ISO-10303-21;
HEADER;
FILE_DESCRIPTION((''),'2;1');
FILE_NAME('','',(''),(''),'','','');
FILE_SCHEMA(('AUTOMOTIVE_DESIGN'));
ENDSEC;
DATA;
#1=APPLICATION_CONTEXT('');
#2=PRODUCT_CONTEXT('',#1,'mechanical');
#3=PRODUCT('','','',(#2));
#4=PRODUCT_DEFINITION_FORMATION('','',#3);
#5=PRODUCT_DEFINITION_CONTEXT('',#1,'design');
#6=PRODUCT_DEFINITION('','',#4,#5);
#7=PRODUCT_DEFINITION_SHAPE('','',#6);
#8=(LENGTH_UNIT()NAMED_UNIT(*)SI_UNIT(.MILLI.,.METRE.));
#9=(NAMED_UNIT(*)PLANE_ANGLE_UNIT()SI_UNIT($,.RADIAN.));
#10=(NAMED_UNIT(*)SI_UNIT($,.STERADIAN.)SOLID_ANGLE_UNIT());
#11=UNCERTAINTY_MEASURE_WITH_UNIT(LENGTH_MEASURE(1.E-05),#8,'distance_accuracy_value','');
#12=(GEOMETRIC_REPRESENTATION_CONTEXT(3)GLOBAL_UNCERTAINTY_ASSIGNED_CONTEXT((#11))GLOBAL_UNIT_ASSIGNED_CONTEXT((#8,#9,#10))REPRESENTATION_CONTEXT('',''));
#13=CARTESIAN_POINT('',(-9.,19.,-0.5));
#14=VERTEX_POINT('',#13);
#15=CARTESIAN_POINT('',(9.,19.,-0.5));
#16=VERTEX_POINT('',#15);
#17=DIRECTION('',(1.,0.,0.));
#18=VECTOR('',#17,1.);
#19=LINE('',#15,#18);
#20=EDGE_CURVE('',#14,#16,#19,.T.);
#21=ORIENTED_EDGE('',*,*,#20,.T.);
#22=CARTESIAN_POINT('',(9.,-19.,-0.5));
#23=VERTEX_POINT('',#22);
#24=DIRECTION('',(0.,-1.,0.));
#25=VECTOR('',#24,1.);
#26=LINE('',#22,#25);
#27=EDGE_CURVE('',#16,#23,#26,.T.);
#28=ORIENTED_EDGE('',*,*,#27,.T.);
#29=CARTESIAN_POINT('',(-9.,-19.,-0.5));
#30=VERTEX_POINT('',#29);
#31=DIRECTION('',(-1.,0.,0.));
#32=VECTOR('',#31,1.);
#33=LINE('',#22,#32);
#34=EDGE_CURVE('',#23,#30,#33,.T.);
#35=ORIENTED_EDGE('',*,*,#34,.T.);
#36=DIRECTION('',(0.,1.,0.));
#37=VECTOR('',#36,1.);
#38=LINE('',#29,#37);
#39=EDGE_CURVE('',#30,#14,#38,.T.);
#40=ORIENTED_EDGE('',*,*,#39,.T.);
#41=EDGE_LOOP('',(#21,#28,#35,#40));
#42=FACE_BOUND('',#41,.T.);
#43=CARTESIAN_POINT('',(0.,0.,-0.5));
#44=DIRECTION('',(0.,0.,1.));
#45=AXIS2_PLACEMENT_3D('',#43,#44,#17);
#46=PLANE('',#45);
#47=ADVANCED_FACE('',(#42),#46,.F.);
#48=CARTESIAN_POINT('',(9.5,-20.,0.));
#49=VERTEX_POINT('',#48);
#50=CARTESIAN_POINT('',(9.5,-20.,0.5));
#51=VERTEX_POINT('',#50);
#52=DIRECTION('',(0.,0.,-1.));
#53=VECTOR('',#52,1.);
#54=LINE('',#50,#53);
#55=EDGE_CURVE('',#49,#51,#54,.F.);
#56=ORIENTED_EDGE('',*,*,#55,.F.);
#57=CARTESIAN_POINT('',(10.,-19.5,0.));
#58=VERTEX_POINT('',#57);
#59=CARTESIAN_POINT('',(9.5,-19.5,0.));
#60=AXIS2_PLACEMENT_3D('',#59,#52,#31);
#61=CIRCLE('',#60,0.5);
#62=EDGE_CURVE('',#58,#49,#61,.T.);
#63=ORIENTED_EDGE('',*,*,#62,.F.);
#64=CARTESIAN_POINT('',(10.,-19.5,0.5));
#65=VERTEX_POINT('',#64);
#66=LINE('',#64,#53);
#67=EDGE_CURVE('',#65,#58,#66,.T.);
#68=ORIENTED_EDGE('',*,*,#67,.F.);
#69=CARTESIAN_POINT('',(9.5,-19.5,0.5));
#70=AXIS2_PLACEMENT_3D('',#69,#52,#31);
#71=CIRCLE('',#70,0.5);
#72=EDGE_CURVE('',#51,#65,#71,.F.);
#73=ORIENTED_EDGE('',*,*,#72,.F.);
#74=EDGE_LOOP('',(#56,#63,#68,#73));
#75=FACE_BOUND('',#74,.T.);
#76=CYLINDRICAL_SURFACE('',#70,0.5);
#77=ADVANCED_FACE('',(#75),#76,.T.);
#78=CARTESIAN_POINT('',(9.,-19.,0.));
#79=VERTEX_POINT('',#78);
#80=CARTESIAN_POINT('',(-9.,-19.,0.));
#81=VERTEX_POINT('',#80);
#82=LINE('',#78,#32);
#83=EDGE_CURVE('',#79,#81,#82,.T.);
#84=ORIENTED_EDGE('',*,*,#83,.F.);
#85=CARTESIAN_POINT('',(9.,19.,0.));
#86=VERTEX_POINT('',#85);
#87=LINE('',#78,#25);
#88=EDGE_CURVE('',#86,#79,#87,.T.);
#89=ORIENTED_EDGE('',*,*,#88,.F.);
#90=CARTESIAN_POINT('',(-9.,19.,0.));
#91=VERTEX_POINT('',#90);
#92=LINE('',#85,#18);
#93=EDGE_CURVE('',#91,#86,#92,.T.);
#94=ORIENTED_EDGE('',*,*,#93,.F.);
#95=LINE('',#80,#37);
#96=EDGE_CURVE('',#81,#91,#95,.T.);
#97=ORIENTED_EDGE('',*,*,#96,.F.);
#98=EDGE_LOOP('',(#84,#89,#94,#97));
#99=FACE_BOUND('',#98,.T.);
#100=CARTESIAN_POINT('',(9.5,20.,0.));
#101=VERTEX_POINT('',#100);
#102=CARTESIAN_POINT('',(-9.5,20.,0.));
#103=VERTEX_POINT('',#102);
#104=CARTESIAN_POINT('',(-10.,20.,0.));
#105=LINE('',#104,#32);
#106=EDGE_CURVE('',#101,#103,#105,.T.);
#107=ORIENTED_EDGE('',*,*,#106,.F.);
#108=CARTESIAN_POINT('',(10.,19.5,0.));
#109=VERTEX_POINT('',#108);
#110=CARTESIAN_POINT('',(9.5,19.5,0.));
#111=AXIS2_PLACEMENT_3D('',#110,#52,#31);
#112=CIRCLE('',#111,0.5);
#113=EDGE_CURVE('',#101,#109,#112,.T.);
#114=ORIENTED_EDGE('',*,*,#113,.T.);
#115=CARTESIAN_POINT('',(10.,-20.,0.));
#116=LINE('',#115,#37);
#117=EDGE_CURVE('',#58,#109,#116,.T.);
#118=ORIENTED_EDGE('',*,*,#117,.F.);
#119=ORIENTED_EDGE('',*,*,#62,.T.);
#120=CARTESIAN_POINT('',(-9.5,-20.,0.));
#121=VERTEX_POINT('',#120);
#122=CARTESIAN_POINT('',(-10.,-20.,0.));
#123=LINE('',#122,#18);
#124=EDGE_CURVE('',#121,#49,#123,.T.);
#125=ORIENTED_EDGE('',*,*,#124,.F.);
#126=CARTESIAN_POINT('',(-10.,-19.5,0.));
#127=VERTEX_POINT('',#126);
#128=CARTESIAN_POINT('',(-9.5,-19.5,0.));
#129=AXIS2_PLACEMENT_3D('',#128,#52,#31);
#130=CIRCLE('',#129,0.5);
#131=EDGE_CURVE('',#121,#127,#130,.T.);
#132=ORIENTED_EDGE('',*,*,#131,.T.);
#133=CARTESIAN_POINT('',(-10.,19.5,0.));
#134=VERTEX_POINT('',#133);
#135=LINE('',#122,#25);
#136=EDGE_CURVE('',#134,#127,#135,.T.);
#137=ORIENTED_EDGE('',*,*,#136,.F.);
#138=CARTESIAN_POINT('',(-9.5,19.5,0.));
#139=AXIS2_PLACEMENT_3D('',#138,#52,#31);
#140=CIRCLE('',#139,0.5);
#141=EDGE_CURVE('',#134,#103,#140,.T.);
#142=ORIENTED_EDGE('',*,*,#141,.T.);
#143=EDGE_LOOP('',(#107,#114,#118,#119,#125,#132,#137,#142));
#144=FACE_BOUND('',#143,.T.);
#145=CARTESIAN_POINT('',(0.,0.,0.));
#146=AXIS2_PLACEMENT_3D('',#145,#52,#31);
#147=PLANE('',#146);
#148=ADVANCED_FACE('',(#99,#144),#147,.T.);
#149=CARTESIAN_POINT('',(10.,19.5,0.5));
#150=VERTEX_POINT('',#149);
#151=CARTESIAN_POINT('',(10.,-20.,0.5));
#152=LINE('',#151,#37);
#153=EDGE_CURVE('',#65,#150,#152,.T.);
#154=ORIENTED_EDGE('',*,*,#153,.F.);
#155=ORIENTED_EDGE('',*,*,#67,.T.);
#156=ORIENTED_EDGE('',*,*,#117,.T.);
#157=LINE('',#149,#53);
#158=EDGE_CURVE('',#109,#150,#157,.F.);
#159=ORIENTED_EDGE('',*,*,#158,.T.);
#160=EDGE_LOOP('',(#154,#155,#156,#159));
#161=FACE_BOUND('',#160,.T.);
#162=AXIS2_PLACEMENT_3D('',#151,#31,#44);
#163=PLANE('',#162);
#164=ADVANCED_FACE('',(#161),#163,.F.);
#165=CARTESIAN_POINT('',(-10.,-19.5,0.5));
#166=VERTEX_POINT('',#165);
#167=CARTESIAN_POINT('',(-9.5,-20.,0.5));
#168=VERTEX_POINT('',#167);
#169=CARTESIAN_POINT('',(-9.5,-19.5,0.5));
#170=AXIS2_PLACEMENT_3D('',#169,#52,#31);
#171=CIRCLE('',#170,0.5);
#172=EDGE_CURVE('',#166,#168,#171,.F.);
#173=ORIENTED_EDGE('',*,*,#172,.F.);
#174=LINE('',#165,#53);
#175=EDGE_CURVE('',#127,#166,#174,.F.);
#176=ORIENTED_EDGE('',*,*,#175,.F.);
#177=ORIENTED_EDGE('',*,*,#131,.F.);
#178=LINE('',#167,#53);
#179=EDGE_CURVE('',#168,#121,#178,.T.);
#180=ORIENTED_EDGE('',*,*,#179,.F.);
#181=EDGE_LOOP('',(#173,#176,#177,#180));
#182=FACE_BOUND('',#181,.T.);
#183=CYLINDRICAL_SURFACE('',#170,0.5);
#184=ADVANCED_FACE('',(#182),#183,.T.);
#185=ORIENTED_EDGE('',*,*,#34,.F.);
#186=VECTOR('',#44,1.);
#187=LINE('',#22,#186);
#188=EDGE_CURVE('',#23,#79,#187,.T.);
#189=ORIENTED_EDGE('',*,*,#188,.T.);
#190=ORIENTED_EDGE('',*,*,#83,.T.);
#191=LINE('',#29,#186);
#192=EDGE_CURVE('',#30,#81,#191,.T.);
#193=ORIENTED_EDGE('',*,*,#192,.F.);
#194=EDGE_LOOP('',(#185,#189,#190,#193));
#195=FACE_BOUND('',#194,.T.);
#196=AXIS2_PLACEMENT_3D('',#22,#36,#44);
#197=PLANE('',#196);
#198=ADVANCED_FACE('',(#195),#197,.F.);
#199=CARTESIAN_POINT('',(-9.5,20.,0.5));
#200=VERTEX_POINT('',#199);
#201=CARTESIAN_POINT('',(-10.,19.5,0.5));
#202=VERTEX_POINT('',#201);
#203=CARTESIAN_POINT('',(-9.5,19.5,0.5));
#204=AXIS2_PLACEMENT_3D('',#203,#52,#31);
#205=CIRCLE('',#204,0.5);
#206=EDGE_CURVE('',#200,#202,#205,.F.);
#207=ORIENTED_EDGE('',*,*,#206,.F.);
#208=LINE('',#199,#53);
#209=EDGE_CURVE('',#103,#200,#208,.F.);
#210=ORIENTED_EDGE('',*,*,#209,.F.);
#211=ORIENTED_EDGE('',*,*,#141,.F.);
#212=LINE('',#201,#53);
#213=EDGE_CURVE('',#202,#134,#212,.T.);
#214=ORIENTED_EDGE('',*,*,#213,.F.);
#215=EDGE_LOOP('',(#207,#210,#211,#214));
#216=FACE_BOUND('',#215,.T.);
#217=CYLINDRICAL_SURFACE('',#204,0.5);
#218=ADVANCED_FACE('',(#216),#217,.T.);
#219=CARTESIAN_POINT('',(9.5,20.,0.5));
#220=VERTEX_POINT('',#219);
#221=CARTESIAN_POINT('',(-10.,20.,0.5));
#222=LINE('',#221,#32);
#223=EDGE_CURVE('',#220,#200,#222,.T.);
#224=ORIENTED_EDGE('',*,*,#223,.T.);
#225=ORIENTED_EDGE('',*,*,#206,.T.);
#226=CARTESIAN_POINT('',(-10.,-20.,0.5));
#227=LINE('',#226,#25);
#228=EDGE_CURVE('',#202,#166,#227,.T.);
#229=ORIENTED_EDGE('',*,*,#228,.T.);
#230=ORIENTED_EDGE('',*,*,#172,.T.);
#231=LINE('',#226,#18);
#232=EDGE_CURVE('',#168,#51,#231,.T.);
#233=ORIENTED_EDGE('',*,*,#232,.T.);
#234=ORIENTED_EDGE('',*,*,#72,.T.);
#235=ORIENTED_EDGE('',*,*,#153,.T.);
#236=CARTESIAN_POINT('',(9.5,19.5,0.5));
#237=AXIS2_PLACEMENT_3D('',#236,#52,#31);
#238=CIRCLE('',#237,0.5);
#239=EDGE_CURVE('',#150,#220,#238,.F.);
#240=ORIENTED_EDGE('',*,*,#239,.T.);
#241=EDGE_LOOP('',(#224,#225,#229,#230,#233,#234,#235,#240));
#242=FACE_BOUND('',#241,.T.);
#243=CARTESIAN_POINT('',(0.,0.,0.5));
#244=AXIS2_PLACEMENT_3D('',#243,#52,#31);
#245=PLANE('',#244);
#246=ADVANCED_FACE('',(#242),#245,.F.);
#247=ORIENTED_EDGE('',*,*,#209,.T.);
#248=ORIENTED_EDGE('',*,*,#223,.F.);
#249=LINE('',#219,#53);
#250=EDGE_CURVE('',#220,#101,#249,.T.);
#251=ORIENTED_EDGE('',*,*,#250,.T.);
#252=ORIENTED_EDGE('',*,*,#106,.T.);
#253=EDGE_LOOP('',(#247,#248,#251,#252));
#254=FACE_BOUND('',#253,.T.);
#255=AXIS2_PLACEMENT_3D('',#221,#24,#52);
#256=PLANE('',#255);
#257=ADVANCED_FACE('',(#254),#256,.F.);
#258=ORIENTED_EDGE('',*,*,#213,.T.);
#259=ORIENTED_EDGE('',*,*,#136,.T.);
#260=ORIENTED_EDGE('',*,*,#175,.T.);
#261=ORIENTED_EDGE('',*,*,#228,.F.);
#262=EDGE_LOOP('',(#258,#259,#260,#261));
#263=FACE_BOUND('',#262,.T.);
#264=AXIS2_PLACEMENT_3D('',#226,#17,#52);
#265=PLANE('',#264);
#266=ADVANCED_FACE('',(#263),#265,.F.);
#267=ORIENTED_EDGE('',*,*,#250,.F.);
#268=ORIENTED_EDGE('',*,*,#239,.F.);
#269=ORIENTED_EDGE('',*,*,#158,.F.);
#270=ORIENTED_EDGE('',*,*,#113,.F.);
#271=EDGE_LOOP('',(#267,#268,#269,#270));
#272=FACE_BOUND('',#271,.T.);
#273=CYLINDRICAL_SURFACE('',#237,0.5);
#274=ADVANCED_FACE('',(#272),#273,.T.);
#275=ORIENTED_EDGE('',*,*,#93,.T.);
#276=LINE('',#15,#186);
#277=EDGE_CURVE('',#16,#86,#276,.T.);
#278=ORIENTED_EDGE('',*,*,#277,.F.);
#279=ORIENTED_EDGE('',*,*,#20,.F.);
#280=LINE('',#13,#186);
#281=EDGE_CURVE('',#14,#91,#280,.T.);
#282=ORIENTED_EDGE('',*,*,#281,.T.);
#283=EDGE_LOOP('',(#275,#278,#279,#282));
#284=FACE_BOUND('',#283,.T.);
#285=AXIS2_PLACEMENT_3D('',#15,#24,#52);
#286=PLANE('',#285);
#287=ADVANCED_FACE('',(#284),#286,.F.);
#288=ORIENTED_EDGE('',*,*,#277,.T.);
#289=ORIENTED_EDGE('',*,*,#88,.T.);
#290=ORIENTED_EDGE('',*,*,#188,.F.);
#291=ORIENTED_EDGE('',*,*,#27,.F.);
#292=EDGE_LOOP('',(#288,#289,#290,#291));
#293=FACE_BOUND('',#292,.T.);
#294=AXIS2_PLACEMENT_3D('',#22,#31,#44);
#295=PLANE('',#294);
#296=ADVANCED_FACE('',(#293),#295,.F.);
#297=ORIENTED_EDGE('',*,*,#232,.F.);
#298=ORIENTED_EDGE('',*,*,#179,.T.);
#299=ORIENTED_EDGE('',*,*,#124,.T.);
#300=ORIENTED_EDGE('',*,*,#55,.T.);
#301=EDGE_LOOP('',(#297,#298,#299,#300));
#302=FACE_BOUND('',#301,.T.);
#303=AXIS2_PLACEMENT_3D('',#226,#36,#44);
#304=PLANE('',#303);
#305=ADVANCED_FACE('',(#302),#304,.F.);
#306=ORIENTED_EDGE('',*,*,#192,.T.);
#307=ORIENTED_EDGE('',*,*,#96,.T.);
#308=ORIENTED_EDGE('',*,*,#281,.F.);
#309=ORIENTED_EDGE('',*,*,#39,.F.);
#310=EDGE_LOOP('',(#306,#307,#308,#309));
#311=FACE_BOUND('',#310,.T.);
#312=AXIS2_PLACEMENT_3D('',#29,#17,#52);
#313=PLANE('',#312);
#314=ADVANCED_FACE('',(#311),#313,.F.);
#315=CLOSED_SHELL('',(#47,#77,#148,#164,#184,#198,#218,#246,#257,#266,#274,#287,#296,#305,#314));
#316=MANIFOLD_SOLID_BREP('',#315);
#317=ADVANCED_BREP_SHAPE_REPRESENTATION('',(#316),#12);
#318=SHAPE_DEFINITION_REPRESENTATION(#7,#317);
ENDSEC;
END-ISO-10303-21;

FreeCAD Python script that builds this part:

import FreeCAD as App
import Part
import Sketcher
from FreeCAD import Vector


def edges_at(feature, points):
    """Names of the edges that pass closest to the given points."""
    edges = feature.Shape.Edges
    near = lambda p: min(range(len(edges)), key=lambda i: edges[i].distToShape(Part.Vertex(*p))[0])
    return sorted({f"Edge{near(p) + 1}" for p in points})

doc = App.newDocument("Part")
params = doc.addObject("Spreadsheet::Sheet", "Params")
for row, (alias, value) in enumerate([
    ("sketch1_width", "20 mm"),
    ("sketch1_height", "40 mm"),
    ("pad1_length", "0.5 mm"),
    ("sketch2_width", "18 mm"),
    ("sketch2_height", "38 mm"),
    ("pad2_length", "0.5 mm"),
    ("fillet_radius", "0.5 mm"),
], start=1):
    params.set(f"A{row}", alias)
    params.set(f"B{row}", "=" + value)
    params.setAlias(f"B{row}", alias)

body = doc.addObject("PartDesign::Body", "Body")

# Sketch on XY plane
sketch1 = body.newObject("Sketcher::SketchObject", "Sketch")
sketch1.AttachmentSupport = (doc.getObject("XY_Plane"), [""])
sketch1.MapMode = "FlatFace"
sketch1.addGeometry(Part.LineSegment(Vector(-10, 20, 0), Vector(-10, -20, 0)), False)
sketch1.addGeometry(Part.LineSegment(Vector(-10, -20, 0), Vector(10, -20, 0)), False)
sketch1.addGeometry(Part.LineSegment(Vector(10, -20, 0), Vector(10, 20, 0)), False)
sketch1.addGeometry(Part.LineSegment(Vector(10, 20, 0), Vector(-10, 20, 0)), False)
sketch1.addConstraint(Sketcher.Constraint("Coincident", 0, 2, 1, 1))
sketch1.addConstraint(Sketcher.Constraint("Coincident", 1, 2, 2, 1))
sketch1.addConstraint(Sketcher.Constraint("Coincident", 2, 2, 3, 1))
sketch1.addConstraint(Sketcher.Constraint("Coincident", 3, 2, 0, 1))
sketch1.addConstraint(Sketcher.Constraint("Vertical", 0))
sketch1.addConstraint(Sketcher.Constraint("Horizontal", 1))
sketch1.addConstraint(Sketcher.Constraint("Vertical", 2))
sketch1.addConstraint(Sketcher.Constraint("Horizontal", 3))
sketch1.addConstraint(Sketcher.Constraint("Symmetric", 0, 2, 2, 2, -1, 1))
sketch1.addConstraint(Sketcher.Constraint("DistanceX", 1, 1, 1, 2, 20.0))
sketch1.addConstraint(Sketcher.Constraint("DistanceY", 0, 2, 0, 1, 40.0))
sketch1.setExpression("Constraints[9]", "Params.sketch1_width")
sketch1.setExpression("Constraints[10]", "Params.sketch1_height")
pad1 = body.newObject("PartDesign::Pad", "Pad")
pad1.Profile = sketch1
pad1.setExpression("Length", "Params.pad1_length")

# Sketch on XY plane
sketch2 = body.newObject("Sketcher::SketchObject", "Sketch001")
sketch2.AttachmentSupport = (doc.getObject("XY_Plane"), [""])
sketch2.MapMode = "FlatFace"
sketch2.addGeometry(Part.LineSegment(Vector(9, 19, 0), Vector(9, -19, 0)), False)
sketch2.addGeometry(Part.LineSegment(Vector(9, -19, 0), Vector(-9, -19, 0)), False)
sketch2.addGeometry(Part.LineSegment(Vector(-9, -19, 0), Vector(-9, 19, 0)), False)
sketch2.addGeometry(Part.LineSegment(Vector(-9, 19, 0), Vector(9, 19, 0)), False)
sketch2.addConstraint(Sketcher.Constraint("Coincident", 0, 2, 1, 1))
sketch2.addConstraint(Sketcher.Constraint("Coincident", 1, 2, 2, 1))
sketch2.addConstraint(Sketcher.Constraint("Coincident", 2, 2, 3, 1))
sketch2.addConstraint(Sketcher.Constraint("Coincident", 3, 2, 0, 1))
sketch2.addConstraint(Sketcher.Constraint("Vertical", 0))
sketch2.addConstraint(Sketcher.Constraint("Horizontal", 1))
sketch2.addConstraint(Sketcher.Constraint("Vertical", 2))
sketch2.addConstraint(Sketcher.Constraint("Horizontal", 3))
sketch2.addConstraint(Sketcher.Constraint("Symmetric", 0, 2, 2, 2, -1, 1))
sketch2.addConstraint(Sketcher.Constraint("DistanceX", 1, 2, 1, 1, 18.0))
sketch2.addConstraint(Sketcher.Constraint("DistanceY", 0, 2, 0, 1, 38.0))
sketch2.setExpression("Constraints[9]", "Params.sketch2_width")
sketch2.setExpression("Constraints[10]", "Params.sketch2_height")
pad2 = body.newObject("PartDesign::Pad", "Pad001")
pad2.Profile = sketch2
pad2.setExpression("Length", "Params.pad2_length")
pad2.Reversed = True
doc.recompute()

fillet = body.newObject("PartDesign::Fillet", "Fillet")
fillet.Base = (pad2, edges_at(pad2, [
    (10, -20, 0.25),
    (-10, -20, 0.25),
    (-10, 20, 0.25),
    (10, 20, 0.25),
]))
fillet.setExpression("Radius", "Params.fillet_radius")

doc.recompute()
